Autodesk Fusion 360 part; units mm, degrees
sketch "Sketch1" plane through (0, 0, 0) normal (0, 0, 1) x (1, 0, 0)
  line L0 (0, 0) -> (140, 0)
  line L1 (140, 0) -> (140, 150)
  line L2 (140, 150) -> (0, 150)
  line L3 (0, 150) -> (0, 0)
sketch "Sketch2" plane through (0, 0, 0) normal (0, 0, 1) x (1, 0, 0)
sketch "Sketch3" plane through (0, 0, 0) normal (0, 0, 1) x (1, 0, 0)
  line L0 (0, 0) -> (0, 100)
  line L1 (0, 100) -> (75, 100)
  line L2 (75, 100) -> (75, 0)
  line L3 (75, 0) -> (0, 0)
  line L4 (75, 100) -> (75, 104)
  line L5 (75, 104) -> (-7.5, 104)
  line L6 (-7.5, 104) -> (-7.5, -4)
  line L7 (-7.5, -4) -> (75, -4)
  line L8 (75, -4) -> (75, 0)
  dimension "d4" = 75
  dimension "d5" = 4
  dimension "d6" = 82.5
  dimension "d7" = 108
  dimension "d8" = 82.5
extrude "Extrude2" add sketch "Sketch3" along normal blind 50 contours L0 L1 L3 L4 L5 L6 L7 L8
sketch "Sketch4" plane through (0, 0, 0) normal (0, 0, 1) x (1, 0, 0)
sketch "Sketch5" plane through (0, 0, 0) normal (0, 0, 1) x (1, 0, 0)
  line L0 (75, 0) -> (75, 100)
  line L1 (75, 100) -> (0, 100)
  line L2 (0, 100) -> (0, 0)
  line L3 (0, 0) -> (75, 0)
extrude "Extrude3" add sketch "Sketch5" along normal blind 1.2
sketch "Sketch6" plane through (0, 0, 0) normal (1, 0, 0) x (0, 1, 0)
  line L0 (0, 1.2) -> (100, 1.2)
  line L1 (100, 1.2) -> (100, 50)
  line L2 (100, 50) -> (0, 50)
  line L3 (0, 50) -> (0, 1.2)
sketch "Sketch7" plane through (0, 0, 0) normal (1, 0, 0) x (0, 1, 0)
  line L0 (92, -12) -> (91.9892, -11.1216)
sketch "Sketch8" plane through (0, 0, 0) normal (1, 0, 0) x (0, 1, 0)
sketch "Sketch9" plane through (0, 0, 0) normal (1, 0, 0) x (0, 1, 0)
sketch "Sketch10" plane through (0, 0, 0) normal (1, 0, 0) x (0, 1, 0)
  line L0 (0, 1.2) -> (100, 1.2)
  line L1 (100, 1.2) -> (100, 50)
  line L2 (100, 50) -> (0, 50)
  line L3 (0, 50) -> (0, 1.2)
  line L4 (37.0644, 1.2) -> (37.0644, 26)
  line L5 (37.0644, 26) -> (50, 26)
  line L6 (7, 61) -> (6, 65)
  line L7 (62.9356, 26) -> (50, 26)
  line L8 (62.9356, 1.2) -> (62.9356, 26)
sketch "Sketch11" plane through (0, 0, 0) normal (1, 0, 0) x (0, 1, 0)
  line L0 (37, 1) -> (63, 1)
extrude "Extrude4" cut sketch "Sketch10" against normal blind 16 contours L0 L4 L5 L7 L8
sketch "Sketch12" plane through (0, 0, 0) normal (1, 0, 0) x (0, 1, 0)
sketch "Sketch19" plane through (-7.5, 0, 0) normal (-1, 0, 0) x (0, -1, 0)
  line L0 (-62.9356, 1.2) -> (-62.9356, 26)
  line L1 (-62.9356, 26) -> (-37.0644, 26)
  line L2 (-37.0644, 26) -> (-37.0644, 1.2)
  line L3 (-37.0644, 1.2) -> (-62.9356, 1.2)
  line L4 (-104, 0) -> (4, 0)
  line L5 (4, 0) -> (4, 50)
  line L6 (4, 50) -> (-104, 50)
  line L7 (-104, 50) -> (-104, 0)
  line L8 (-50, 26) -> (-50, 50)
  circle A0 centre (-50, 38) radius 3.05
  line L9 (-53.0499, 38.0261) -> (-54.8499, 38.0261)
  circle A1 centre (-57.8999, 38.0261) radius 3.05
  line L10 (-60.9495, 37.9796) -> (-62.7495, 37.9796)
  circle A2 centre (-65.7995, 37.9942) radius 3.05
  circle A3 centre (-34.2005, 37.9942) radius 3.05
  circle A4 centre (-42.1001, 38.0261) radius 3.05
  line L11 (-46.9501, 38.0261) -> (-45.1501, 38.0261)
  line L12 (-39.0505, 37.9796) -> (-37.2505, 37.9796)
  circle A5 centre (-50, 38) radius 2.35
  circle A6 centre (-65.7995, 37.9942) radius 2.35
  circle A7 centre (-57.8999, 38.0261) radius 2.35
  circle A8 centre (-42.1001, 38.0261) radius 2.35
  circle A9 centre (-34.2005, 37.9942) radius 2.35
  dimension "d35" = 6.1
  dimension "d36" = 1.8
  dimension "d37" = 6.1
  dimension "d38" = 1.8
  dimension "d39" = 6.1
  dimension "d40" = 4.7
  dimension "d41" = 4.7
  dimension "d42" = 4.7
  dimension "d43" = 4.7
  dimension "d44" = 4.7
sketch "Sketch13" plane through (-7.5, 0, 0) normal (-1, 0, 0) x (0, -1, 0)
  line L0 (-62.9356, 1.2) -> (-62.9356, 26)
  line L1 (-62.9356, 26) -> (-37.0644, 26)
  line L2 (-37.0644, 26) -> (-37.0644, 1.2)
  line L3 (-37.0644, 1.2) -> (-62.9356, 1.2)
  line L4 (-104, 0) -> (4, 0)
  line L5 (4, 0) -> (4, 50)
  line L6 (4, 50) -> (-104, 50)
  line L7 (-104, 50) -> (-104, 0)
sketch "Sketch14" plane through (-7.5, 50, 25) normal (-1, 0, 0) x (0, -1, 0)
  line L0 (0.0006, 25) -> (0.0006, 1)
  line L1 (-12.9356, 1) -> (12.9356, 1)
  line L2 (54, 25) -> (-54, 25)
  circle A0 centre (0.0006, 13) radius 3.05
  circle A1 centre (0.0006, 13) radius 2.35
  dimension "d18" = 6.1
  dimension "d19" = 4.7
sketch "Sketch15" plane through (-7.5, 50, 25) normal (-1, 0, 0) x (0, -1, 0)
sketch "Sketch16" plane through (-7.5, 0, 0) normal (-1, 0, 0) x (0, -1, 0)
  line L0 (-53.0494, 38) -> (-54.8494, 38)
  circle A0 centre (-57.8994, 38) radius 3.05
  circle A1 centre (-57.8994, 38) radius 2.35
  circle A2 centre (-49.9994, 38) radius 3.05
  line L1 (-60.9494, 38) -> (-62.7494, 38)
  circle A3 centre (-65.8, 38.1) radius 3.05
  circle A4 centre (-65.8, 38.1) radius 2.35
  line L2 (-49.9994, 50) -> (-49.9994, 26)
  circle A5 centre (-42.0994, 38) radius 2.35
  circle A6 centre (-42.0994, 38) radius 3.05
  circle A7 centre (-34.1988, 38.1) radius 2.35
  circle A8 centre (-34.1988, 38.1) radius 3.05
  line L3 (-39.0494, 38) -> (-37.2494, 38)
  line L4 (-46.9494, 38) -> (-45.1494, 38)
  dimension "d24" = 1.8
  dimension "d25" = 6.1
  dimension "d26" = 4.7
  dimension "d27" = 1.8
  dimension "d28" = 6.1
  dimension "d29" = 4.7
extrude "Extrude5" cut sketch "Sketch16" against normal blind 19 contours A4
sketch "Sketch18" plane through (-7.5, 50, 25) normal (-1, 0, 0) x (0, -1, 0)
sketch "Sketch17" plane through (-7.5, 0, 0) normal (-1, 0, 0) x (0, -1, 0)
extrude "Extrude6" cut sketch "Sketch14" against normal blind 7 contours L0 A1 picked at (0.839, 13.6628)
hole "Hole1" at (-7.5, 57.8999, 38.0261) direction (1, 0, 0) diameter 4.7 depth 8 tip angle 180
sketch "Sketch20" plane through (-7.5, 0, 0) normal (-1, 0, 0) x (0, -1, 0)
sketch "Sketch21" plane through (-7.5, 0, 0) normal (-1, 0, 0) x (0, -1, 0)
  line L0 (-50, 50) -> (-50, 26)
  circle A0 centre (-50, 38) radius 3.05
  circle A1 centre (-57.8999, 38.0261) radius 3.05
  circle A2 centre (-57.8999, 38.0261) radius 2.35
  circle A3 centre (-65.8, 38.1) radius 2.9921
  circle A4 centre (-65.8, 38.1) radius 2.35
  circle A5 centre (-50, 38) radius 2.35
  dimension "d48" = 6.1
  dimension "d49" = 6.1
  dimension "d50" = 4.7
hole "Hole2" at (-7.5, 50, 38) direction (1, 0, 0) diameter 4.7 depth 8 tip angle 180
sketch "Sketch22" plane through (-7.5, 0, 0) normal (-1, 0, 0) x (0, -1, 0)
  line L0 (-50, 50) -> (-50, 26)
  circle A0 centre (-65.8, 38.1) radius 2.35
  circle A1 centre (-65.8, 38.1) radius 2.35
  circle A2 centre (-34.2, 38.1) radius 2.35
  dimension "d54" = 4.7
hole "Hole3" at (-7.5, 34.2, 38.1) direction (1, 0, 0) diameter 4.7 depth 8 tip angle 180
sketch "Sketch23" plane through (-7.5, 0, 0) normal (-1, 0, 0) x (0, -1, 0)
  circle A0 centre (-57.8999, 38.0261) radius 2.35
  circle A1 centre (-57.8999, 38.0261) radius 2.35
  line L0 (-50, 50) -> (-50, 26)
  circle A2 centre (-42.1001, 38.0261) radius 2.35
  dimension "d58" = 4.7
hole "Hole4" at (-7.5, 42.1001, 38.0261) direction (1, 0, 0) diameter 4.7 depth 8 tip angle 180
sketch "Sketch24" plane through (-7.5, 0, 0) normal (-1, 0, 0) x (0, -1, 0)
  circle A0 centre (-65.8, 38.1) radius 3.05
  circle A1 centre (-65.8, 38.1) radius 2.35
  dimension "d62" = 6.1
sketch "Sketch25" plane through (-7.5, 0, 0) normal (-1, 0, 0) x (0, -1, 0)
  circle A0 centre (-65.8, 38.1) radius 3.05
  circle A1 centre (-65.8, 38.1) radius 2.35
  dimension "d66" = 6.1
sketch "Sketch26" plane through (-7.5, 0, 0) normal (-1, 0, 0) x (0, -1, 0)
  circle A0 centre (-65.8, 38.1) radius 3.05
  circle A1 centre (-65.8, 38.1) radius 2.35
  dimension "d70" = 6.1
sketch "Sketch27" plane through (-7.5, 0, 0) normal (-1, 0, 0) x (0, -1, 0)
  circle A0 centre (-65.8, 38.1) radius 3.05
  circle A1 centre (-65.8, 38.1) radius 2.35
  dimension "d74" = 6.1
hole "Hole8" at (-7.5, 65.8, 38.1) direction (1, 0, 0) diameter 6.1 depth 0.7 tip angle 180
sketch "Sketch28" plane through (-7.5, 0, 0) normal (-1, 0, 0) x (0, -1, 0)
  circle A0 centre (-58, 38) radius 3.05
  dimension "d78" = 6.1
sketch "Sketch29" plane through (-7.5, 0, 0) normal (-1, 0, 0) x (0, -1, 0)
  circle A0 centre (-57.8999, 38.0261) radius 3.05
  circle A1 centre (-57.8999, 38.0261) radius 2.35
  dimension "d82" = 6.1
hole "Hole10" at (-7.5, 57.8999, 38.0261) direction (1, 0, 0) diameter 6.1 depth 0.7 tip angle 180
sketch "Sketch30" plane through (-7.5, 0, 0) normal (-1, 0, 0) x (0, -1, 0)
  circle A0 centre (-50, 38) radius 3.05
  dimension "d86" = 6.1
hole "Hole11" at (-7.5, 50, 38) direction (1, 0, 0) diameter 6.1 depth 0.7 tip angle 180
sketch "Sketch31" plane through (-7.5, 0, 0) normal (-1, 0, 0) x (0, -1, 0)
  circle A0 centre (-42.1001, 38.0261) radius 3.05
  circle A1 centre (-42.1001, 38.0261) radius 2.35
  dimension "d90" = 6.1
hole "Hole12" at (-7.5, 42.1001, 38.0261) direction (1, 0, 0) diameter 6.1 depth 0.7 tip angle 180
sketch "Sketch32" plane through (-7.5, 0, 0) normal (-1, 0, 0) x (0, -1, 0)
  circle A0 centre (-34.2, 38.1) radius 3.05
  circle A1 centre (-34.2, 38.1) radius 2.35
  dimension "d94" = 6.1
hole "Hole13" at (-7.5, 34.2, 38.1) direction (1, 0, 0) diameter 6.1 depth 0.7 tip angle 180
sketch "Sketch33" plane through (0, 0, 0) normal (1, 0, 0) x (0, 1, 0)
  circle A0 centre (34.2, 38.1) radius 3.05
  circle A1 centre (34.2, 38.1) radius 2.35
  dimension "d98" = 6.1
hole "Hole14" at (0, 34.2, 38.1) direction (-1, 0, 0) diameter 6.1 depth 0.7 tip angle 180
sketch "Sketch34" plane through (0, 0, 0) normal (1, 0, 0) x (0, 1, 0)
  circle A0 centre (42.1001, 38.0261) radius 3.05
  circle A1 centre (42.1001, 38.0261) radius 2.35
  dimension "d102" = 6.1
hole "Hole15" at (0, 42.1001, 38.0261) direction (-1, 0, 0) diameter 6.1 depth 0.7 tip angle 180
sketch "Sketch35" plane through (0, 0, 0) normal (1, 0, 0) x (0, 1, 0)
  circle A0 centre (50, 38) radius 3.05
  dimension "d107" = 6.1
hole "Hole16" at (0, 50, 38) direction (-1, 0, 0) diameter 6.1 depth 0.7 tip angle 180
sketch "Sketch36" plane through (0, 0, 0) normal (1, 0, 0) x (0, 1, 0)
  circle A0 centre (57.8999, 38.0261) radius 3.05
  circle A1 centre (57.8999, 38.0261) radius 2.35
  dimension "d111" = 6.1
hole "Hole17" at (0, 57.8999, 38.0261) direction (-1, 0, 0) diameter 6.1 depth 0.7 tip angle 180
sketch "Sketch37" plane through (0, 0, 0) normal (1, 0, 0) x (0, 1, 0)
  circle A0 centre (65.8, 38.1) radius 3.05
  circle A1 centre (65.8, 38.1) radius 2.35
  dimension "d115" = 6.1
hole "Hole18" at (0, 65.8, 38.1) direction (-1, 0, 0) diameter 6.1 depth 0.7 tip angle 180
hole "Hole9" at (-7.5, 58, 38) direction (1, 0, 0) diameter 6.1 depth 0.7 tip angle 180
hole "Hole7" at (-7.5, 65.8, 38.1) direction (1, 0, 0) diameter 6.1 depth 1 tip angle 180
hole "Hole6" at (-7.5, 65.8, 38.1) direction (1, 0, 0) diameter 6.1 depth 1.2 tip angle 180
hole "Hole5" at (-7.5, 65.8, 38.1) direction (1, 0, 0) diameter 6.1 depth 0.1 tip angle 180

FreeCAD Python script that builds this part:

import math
import FreeCAD as App
import Part
import Sketcher
from FreeCAD import Vector
Q = App.Units.Quantity


def add_polygon(sketch, points):
    """Adds a closed chain of lines whose ends are joined by coincident constraints."""
    first, n = sketch.GeometryCount, len(points)
    for a, b in zip(points, points[1:] + points[:1]):
        sketch.addGeometry(Part.LineSegment(App.Vector(*a, 0), App.Vector(*b, 0)), False)
    for i in range(n):
        sketch.addConstraint(Sketcher.Constraint("Coincident", first + i, 2, first + (i + 1) % n, 1))

doc = App.newDocument("Part")
body = doc.addObject("PartDesign::Body", "Body")

# Sketch on XY plane
sketch1 = body.newObject("Sketcher::SketchObject", "Sketch")
sketch1.AttachmentSupport = (doc.getObject("XY_Plane"), [""])
sketch1.MapMode = "FlatFace"
add_polygon(sketch1, [(75, 0), (0, 0), (0, 100), (75, 100), (75, 104), (-7.5, 104), (-7.5, -4), (75, -4)])  # lines 0-7
sketch1.addConstraint([
    Sketcher.Constraint("Horizontal", 0),
    Sketcher.Constraint("Vertical", 1),
    Sketcher.Constraint("Horizontal", 2),
    Sketcher.Constraint("Vertical", 3),
    Sketcher.Constraint("Horizontal", 4),
    Sketcher.Constraint("Vertical", 5),
    Sketcher.Constraint("Horizontal", 6),
    Sketcher.Constraint("Vertical", 7),
    Sketcher.Constraint("Coincident", 0, 2, -1, 1),
    Sketcher.Constraint("Vertical", 3, 2, 6, 2),
    Sketcher.Constraint("Equal", 3, 7),
    Sketcher.Constraint("DistanceX", 0, 2, 0, 1, Q("75 mm")),
    Sketcher.Constraint("DistanceY", 3, 1, 3, 2, Q("4 mm")),
    Sketcher.Constraint("DistanceY", 5, 2, 5, 1, Q("108 mm")),
    Sketcher.Constraint("DistanceX", 4, 2, 4, 1, Q("82.5 mm")),
])
pad1 = body.newObject("PartDesign::Pad", "Pad")
pad1.Profile = sketch1
pad1.Length = 50

# Sketch on XY plane
sketch2 = body.newObject("Sketcher::SketchObject", "Sketch001")
sketch2.AttachmentSupport = (doc.getObject("XY_Plane"), [""])
sketch2.MapMode = "FlatFace"
add_polygon(sketch2, [(0, 0), (75, 0), (75, 100), (0, 100)])  # lines 0-3
sketch2.addConstraint([
    Sketcher.Constraint("Horizontal", 0),
    Sketcher.Constraint("Vertical", 1),
    Sketcher.Constraint("Horizontal", 2),
    Sketcher.Constraint("Vertical", 3),
    Sketcher.Constraint("Coincident", 3, 2, -1, 1),
    Sketcher.Constraint("DistanceX", 0, 1, 0, 2, Q("75 mm")),
    Sketcher.Constraint("DistanceY", 1, 1, 1, 2, Q("100 mm")),
])
pad2 = body.newObject("PartDesign::Pad", "Pad001")
pad2.Profile = sketch2
pad2.Length = 1.2

# Sketch on YZ plane
sketch3 = body.newObject("Sketcher::SketchObject", "Sketch002")
sketch3.AttachmentSupport = (doc.getObject("YZ_Plane"), [""])
sketch3.MapMode = "FlatFace"
add_polygon(sketch3, [(37.0644, 26), (37.0644, 1.2), (62.9356, 1.2), (62.9356, 26)])  # lines 0-3
sketch3.addConstraint([
    Sketcher.Constraint("Vertical", 0),
    Sketcher.Constraint("Horizontal", 1),
    Sketcher.Constraint("Vertical", 2),
    Sketcher.Constraint("Horizontal", 3),
    Sketcher.Constraint("DistanceY", 0, 2, 0, 1, Q("24.8 mm")),
    Sketcher.Constraint("DistanceY", -1, 1, 2, 2, Q("26 mm")),
    Sketcher.Constraint("DistanceX", 1, 1, 1, 2, Q("25.8712 mm")),
    Sketcher.Constraint("DistanceX", -1, 1, 0, 2, Q("37.0644 mm")),
])
pocket1 = body.newObject("PartDesign::Pocket", "Pocket")
pocket1.Profile = sketch3
pocket1.Length = 16

# Sketch on YZ plane
sketch4 = body.newObject("Sketcher::SketchObject", "Sketch003")
sketch4.AttachmentSupport = (doc.getObject("YZ_Plane"), [""])
sketch4.MapMode = "FlatFace"
sketch4.AttachmentOffset = App.Placement(Vector(0, 0, -7.5), App.Rotation())
sketch4.addGeometry(Part.Circle(Vector(65.8, 38.1, 0), Vector(0, 0, 1), 2.35), False)
sketch4.addConstraint([
    Sketcher.Constraint("Diameter", 0, Q("4.7 mm")),
    Sketcher.Constraint("DistanceX", -1, 1, 0, 3, Q("65.8 mm")),
    Sketcher.Constraint("DistanceY", -1, 1, 0, 3, Q("38.1 mm")),
])
pocket2 = body.newObject("PartDesign::Pocket", "Pocket001")
pocket2.Profile = sketch4
pocket2.Length = 19
pocket2.Reversed = True

# Sketch on YZ plane
sketch5 = body.newObject("Sketcher::SketchObject", "Sketch004")
sketch5.AttachmentSupport = (doc.getObject("YZ_Plane"), [""])
sketch5.MapMode = "FlatFace"
sketch5.AttachmentOffset = App.Placement(Vector(0, 0, -7.5), App.Rotation())
sketch5.addGeometry([
    Part.ArcOfCircle(Part.Circle(Vector(49.9994, 38, 0), Vector(0, 0, 1), 2.35), math.radians(90), math.radians(270)),
    Part.LineSegment(Vector(49.9994, 40.35, 0), Vector(49.9994, 35.65, 0)),
], False)
sketch5.addConstraint([
    Sketcher.Constraint("Coincident", 0, 1, 1, 1),
    Sketcher.Constraint("Coincident", 1, 2, 0, 2),
    Sketcher.Constraint("Vertical", 1),
    Sketcher.Constraint("Radius", 0, Q("2.35 mm")),
    Sketcher.Constraint("DistanceY", -1, 1, 0, 3, Q("38 mm")),
    Sketcher.Constraint("DistanceX", -1, 1, 0, 3, Q("49.9994 mm")),
    Sketcher.Constraint("DistanceX", -1, 1, 0, 1, Q("49.9994 mm")),
])
pocket3 = body.newObject("PartDesign::Pocket", "Pocket002")
pocket3.Profile = sketch5
pocket3.Length = 7
pocket3.Reversed = True

# Sketch on YZ plane
sketch6 = body.newObject("Sketcher::SketchObject", "Sketch005")
sketch6.AttachmentSupport = (doc.getObject("YZ_Plane"), [""])
sketch6.MapMode = "FlatFace"
sketch6.AttachmentOffset = App.Placement(Vector(0, 0, -7.5), App.Rotation())
sketch6.addGeometry(Part.Circle(Vector(57.8999, 38.0261, 0), Vector(0, 0, 1), 2.35), False)
sketch6.addConstraint([
    Sketcher.Constraint("Diameter", 0, Q("4.7 mm")),
    Sketcher.Constraint("DistanceX", -1, 1, 0, 3, Q("57.9 mm")),
    Sketcher.Constraint("DistanceY", -1, 1, 0, 3, Q("38.026 mm")),
])
doc.recompute()
hole = body.newObject("PartDesign::Hole", "Hole")
hole.Profile = sketch6
hole.ThreadType = "None"
hole.Diameter = 4.7
hole.DepthType = "Dimension"
hole.Depth = 8
hole.DrillPoint = "Flat"
hole.Reversed = True

# Sketch on YZ plane
sketch7 = body.newObject("Sketcher::SketchObject", "Sketch006")
sketch7.AttachmentSupport = (doc.getObject("YZ_Plane"), [""])
sketch7.MapMode = "FlatFace"
sketch7.AttachmentOffset = App.Placement(Vector(0, 0, -7.5), App.Rotation())
sketch7.addGeometry(Part.Circle(Vector(50, 38, 0), Vector(0, 0, 1), 2.35), False)
sketch7.addConstraint([
    Sketcher.Constraint("Diameter", 0, Q("4.7 mm")),
    Sketcher.Constraint("DistanceX", -1, 1, 0, 3, Q("50 mm")),
    Sketcher.Constraint("DistanceY", -1, 1, 0, 3, Q("38 mm")),
])
doc.recompute()
hole2 = body.newObject("PartDesign::Hole", "Hole001")
hole2.Profile = sketch7
hole2.ThreadType = "None"
hole2.Diameter = 4.7
hole2.DepthType = "Dimension"
hole2.Depth = 8
hole2.DrillPoint = "Flat"
hole2.Reversed = True

# Sketch on YZ plane
sketch8 = body.newObject("Sketcher::SketchObject", "Sketch007")
sketch8.AttachmentSupport = (doc.getObject("YZ_Plane"), [""])
sketch8.MapMode = "FlatFace"
sketch8.AttachmentOffset = App.Placement(Vector(0, 0, -7.5), App.Rotation())
sketch8.addGeometry(Part.Circle(Vector(34.2, 38.1, 0), Vector(0, 0, 1), 2.35), False)
sketch8.addConstraint([
    Sketcher.Constraint("Diameter", 0, Q("4.7 mm")),
    Sketcher.Constraint("DistanceX", -1, 1, 0, 3, Q("34.2 mm")),
    Sketcher.Constraint("DistanceY", -1, 1, 0, 3, Q("38.1 mm")),
])
doc.recompute()
hole3 = body.newObject("PartDesign::Hole", "Hole002")
hole3.Profile = sketch8
hole3.ThreadType = "None"
hole3.Diameter = 4.7
hole3.DepthType = "Dimension"
hole3.Depth = 8
hole3.DrillPoint = "Flat"
hole3.Reversed = True

# Sketch on YZ plane
sketch9 = body.newObject("Sketcher::SketchObject", "Sketch008")
sketch9.AttachmentSupport = (doc.getObject("YZ_Plane"), [""])
sketch9.MapMode = "FlatFace"
sketch9.AttachmentOffset = App.Placement(Vector(0, 0, -7.5), App.Rotation())
sketch9.addGeometry(Part.Circle(Vector(42.1001, 38.0261, 0), Vector(0, 0, 1), 2.35), False)
sketch9.addConstraint([
    Sketcher.Constraint("Diameter", 0, Q("4.7 mm")),
    Sketcher.Constraint("DistanceX", -1, 1, 0, 3, Q("42.1 mm")),
    Sketcher.Constraint("DistanceY", -1, 1, 0, 3, Q("38.026 mm")),
])
doc.recompute()
hole4 = body.newObject("PartDesign::Hole", "Hole003")
hole4.Profile = sketch9
hole4.ThreadType = "None"
hole4.Diameter = 4.7
hole4.DepthType = "Dimension"
hole4.Depth = 8
hole4.DrillPoint = "Flat"
hole4.Reversed = True

# Sketch on YZ plane
sketch10 = body.newObject("Sketcher::SketchObject", "Sketch009")
sketch10.AttachmentSupport = (doc.getObject("YZ_Plane"), [""])
sketch10.MapMode = "FlatFace"
sketch10.AttachmentOffset = App.Placement(Vector(0, 0, -7.5), App.Rotation())
sketch10.addGeometry(Part.Circle(Vector(65.8, 38.1, 0), Vector(0, 0, 1), 3.05), False)
sketch10.addConstraint([
    Sketcher.Constraint("Diameter", 0, Q("6.1 mm")),
    Sketcher.Constraint("DistanceX", -1, 1, 0, 3, Q("65.8 mm")),
    Sketcher.Constraint("DistanceY", -1, 1, 0, 3, Q("38.1 mm")),
])
doc.recompute()
hole5 = body.newObject("PartDesign::Hole", "Hole004")
hole5.Profile = sketch10
hole5.ThreadType = "None"
hole5.Diameter = 6.1
hole5.DepthType = "Dimension"
hole5.Depth = 0.7
hole5.DrillPoint = "Flat"
hole5.Reversed = True

# Sketch on YZ plane
sketch11 = body.newObject("Sketcher::SketchObject", "Sketch010")
sketch11.AttachmentSupport = (doc.getObject("YZ_Plane"), [""])
sketch11.MapMode = "FlatFace"
sketch11.AttachmentOffset = App.Placement(Vector(0, 0, -7.5), App.Rotation())
sketch11.addGeometry(Part.Circle(Vector(57.8999, 38.0261, 0), Vector(0, 0, 1), 3.05), False)
sketch11.addConstraint([
    Sketcher.Constraint("Diameter", 0, Q("6.1 mm")),
    Sketcher.Constraint("DistanceX", -1, 1, 0, 3, Q("57.9 mm")),
    Sketcher.Constraint("DistanceY", -1, 1, 0, 3, Q("38.026 mm")),
])
doc.recompute()
hole6 = body.newObject("PartDesign::Hole", "Hole005")
hole6.Profile = sketch11
hole6.ThreadType = "None"
hole6.Diameter = 6.1
hole6.DepthType = "Dimension"
hole6.Depth = 0.7
hole6.DrillPoint = "Flat"
hole6.Reversed = True

# Sketch on YZ plane
sketch12 = body.newObject("Sketcher::SketchObject", "Sketch011")
sketch12.AttachmentSupport = (doc.getObject("YZ_Plane"), [""])
sketch12.MapMode = "FlatFace"
sketch12.AttachmentOffset = App.Placement(Vector(0, 0, -7.5), App.Rotation())
sketch12.addGeometry(Part.Circle(Vector(50, 38, 0), Vector(0, 0, 1), 3.05), False)
sketch12.addConstraint([
    Sketcher.Constraint("Diameter", 0, Q("6.1 mm")),
    Sketcher.Constraint("DistanceX", -1, 1, 0, 3, Q("50 mm")),
    Sketcher.Constraint("DistanceY", -1, 1, 0, 3, Q("38 mm")),
])
doc.recompute()
hole7 = body.newObject("PartDesign::Hole", "Hole006")
hole7.Profile = sketch12
hole7.ThreadType = "None"
hole7.Diameter = 6.1
hole7.DepthType = "Dimension"
hole7.Depth = 0.7
hole7.DrillPoint = "Flat"
hole7.Reversed = True

# Sketch on YZ plane
sketch13 = body.newObject("Sketcher::SketchObject", "Sketch012")
sketch13.AttachmentSupport = (doc.getObject("YZ_Plane"), [""])
sketch13.MapMode = "FlatFace"
sketch13.AttachmentOffset = App.Placement(Vector(0, 0, -7.5), App.Rotation())
sketch13.addGeometry(Part.Circle(Vector(42.1001, 38.0261, 0), Vector(0, 0, 1), 3.05), False)
sketch13.addConstraint([
    Sketcher.Constraint("Diameter", 0, Q("6.1 mm")),
    Sketcher.Constraint("DistanceX", -1, 1, 0, 3, Q("42.1 mm")),
    Sketcher.Constraint("DistanceY", -1, 1, 0, 3, Q("38.026 mm")),
])
doc.recompute()
hole8 = body.newObject("PartDesign::Hole", "Hole007")
hole8.Profile = sketch13
hole8.ThreadType = "None"
hole8.Diameter = 6.1
hole8.DepthType = "Dimension"
hole8.Depth = 0.7
hole8.DrillPoint = "Flat"
hole8.Reversed = True

# Sketch on YZ plane
sketch14 = body.newObject("Sketcher::SketchObject", "Sketch013")
sketch14.AttachmentSupport = (doc.getObject("YZ_Plane"), [""])
sketch14.MapMode = "FlatFace"
sketch14.AttachmentOffset = App.Placement(Vector(0, 0, -7.5), App.Rotation())
sketch14.addGeometry(Part.Circle(Vector(34.2, 38.1, 0), Vector(0, 0, 1), 3.05), False)
sketch14.addConstraint([
    Sketcher.Constraint("Diameter", 0, Q("6.1 mm")),
    Sketcher.Constraint("DistanceX", -1, 1, 0, 3, Q("34.2 mm")),
    Sketcher.Constraint("DistanceY", -1, 1, 0, 3, Q("38.1 mm")),
])
doc.recompute()
hole9 = body.newObject("PartDesign::Hole", "Hole008")
hole9.Profile = sketch14
hole9.ThreadType = "None"
hole9.Diameter = 6.1
hole9.DepthType = "Dimension"
hole9.Depth = 0.7
hole9.DrillPoint = "Flat"
hole9.Reversed = True

# Sketch on YZ plane
sketch15 = body.newObject("Sketcher::SketchObject", "Sketch014")
sketch15.AttachmentSupport = (doc.getObject("YZ_Plane"), [""])
sketch15.MapMode = "FlatFace"
sketch15.addGeometry(Part.Circle(Vector(34.2, 38.1, 0), Vector(0, 0, 1), 3.05), False)
sketch15.addConstraint([
    Sketcher.Constraint("Diameter", 0, Q("6.1 mm")),
    Sketcher.Constraint("DistanceX", -1, 1, 0, 3, Q("34.2 mm")),
    Sketcher.Constraint("DistanceY", -1, 1, 0, 3, Q("38.1 mm")),
])
doc.recompute()
hole10 = body.newObject("PartDesign::Hole", "Hole009")
hole10.Profile = sketch15
hole10.ThreadType = "None"
hole10.Diameter = 6.1
hole10.DepthType = "Dimension"
hole10.Depth = 0.7
hole10.DrillPoint = "Flat"

# Sketch on YZ plane
sketch16 = body.newObject("Sketcher::SketchObject", "Sketch015")
sketch16.AttachmentSupport = (doc.getObject("YZ_Plane"), [""])
sketch16.MapMode = "FlatFace"
sketch16.addGeometry(Part.Circle(Vector(42.1001, 38.0261, 0), Vector(0, 0, 1), 3.05), False)
sketch16.addConstraint([
    Sketcher.Constraint("Diameter", 0, Q("6.1 mm")),
    Sketcher.Constraint("DistanceX", -1, 1, 0, 3, Q("42.1 mm")),
    Sketcher.Constraint("DistanceY", -1, 1, 0, 3, Q("38.026 mm")),
])
doc.recompute()
hole11 = body.newObject("PartDesign::Hole", "Hole010")
hole11.Profile = sketch16
hole11.ThreadType = "None"
hole11.Diameter = 6.1
hole11.DepthType = "Dimension"
hole11.Depth = 0.7
hole11.DrillPoint = "Flat"

# Sketch on YZ plane
sketch17 = body.newObject("Sketcher::SketchObject", "Sketch016")
sketch17.AttachmentSupport = (doc.getObject("YZ_Plane"), [""])
sketch17.MapMode = "FlatFace"
sketch17.addGeometry(Part.Circle(Vector(50, 38, 0), Vector(0, 0, 1), 3.05), False)
sketch17.addConstraint([
    Sketcher.Constraint("Diameter", 0, Q("6.1 mm")),
    Sketcher.Constraint("DistanceX", -1, 1, 0, 3, Q("50 mm")),
    Sketcher.Constraint("DistanceY", -1, 1, 0, 3, Q("38 mm")),
])
doc.recompute()
hole12 = body.newObject("PartDesign::Hole", "Hole011")
hole12.Profile = sketch17
hole12.ThreadType = "None"
hole12.Diameter = 6.1
hole12.DepthType = "Dimension"
hole12.Depth = 0.7
hole12.DrillPoint = "Flat"

# Sketch on YZ plane
sketch18 = body.newObject("Sketcher::SketchObject", "Sketch017")
sketch18.AttachmentSupport = (doc.getObject("YZ_Plane"), [""])
sketch18.MapMode = "FlatFace"
sketch18.addGeometry(Part.Circle(Vector(57.8999, 38.0261, 0), Vector(0, 0, 1), 3.05), False)
sketch18.addConstraint([
    Sketcher.Constraint("Diameter", 0, Q("6.1 mm")),
    Sketcher.Constraint("DistanceX", -1, 1, 0, 3, Q("57.9 mm")),
    Sketcher.Constraint("DistanceY", -1, 1, 0, 3, Q("38.026 mm")),
])
doc.recompute()
hole13 = body.newObject("PartDesign::Hole", "Hole012")
hole13.Profile = sketch18
hole13.ThreadType = "None"
hole13.Diameter = 6.1
hole13.DepthType = "Dimension"
hole13.Depth = 0.7
hole13.DrillPoint = "Flat"

# Sketch on YZ plane
sketch19 = body.newObject("Sketcher::SketchObject", "Sketch018")
sketch19.AttachmentSupport = (doc.getObject("YZ_Plane"), [""])
sketch19.MapMode = "FlatFace"
sketch19.addGeometry(Part.Circle(Vector(65.8, 38.1, 0), Vector(0, 0, 1), 3.05), False)
sketch19.addConstraint([
    Sketcher.Constraint("Diameter", 0, Q("6.1 mm")),
    Sketcher.Constraint("DistanceX", -1, 1, 0, 3, Q("65.8 mm")),
    Sketcher.Constraint("DistanceY", -1, 1, 0, 3, Q("38.1 mm")),
])
doc.recompute()
hole14 = body.newObject("PartDesign::Hole", "Hole013")
hole14.Profile = sketch19
hole14.ThreadType = "None"
hole14.Diameter = 6.1
hole14.DepthType = "Dimension"
hole14.Depth = 0.7
hole14.DrillPoint = "Flat"

# Sketch on YZ plane
sketch20 = body.newObject("Sketcher::SketchObject", "Sketch019")
sketch20.AttachmentSupport = (doc.getObject("YZ_Plane"), [""])
sketch20.MapMode = "FlatFace"
sketch20.AttachmentOffset = App.Placement(Vector(0, 0, -7.5), App.Rotation())
sketch20.addGeometry(Part.Circle(Vector(58, 38, 0), Vector(0, 0, 1), 3.05), False)
sketch20.addConstraint([
    Sketcher.Constraint("Diameter", 0, Q("6.1 mm")),
    Sketcher.Constraint("DistanceX", -1, 1, 0, 3, Q("58 mm")),
    Sketcher.Constraint("DistanceY", -1, 1, 0, 3, Q("38 mm")),
])
doc.recompute()
hole15 = body.newObject("PartDesign::Hole", "Hole014")
hole15.Profile = sketch20
hole15.ThreadType = "None"
hole15.Diameter = 6.1
hole15.DepthType = "Dimension"
hole15.Depth = 0.7
hole15.DrillPoint = "Flat"
hole15.Reversed = True

# Sketch on YZ plane
sketch21 = body.newObject("Sketcher::SketchObject", "Sketch020")
sketch21.AttachmentSupport = (doc.getObject("YZ_Plane"), [""])
sketch21.MapMode = "FlatFace"
sketch21.AttachmentOffset = App.Placement(Vector(0, 0, -7.5), App.Rotation())
sketch21.addGeometry(Part.Circle(Vector(65.8, 38.1, 0), Vector(0, 0, 1), 3.05), False)
sketch21.addConstraint([
    Sketcher.Constraint("Diameter", 0, Q("6.1 mm")),
    Sketcher.Constraint("DistanceX", -1, 1, 0, 3, Q("65.8 mm")),
    Sketcher.Constraint("DistanceY", -1, 1, 0, 3, Q("38.1 mm")),
])
doc.recompute()
hole16 = body.newObject("PartDesign::Hole", "Hole015")
hole16.Profile = sketch21
hole16.ThreadType = "None"
hole16.Diameter = 6.1
hole16.DepthType = "Dimension"
hole16.Depth = 1
hole16.DrillPoint = "Flat"
hole16.Reversed = True

# Sketch on YZ plane
sketch22 = body.newObject("Sketcher::SketchObject", "Sketch021")
sketch22.AttachmentSupport = (doc.getObject("YZ_Plane"), [""])
sketch22.MapMode = "FlatFace"
sketch22.AttachmentOffset = App.Placement(Vector(0, 0, -7.5), App.Rotation())
sketch22.addGeometry(Part.Circle(Vector(65.8, 38.1, 0), Vector(0, 0, 1), 3.05), False)
sketch22.addConstraint([
    Sketcher.Constraint("Diameter", 0, Q("6.1 mm")),
    Sketcher.Constraint("DistanceX", -1, 1, 0, 3, Q("65.8 mm")),
    Sketcher.Constraint("DistanceY", -1, 1, 0, 3, Q("38.1 mm")),
])
doc.recompute()
hole17 = body.newObject("PartDesign::Hole", "Hole016")
hole17.Profile = sketch22
hole17.ThreadType = "None"
hole17.Diameter = 6.1
hole17.DepthType = "Dimension"
hole17.Depth = 1.2
hole17.DrillPoint = "Flat"
hole17.Reversed = True

# Sketch on YZ plane
sketch23 = body.newObject("Sketcher::SketchObject", "Sketch022")
sketch23.AttachmentSupport = (doc.getObject("YZ_Plane"), [""])
sketch23.MapMode = "FlatFace"
sketch23.AttachmentOffset = App.Placement(Vector(0, 0, -7.5), App.Rotation())
sketch23.addGeometry(Part.Circle(Vector(65.8, 38.1, 0), Vector(0, 0, 1), 3.05), False)
sketch23.addConstraint([
    Sketcher.Constraint("Diameter", 0, Q("6.1 mm")),
    Sketcher.Constraint("DistanceX", -1, 1, 0, 3, Q("65.8 mm")),
    Sketcher.Constraint("DistanceY", -1, 1, 0, 3, Q("38.1 mm")),
])
doc.recompute()
hole18 = body.newObject("PartDesign::Hole", "Hole017")
hole18.Profile = sketch23
hole18.ThreadType = "None"
hole18.Diameter = 6.1
hole18.DepthType = "Dimension"
hole18.Depth = 0.1
hole18.DrillPoint = "Flat"
hole18.Reversed = True

doc.recompute()
